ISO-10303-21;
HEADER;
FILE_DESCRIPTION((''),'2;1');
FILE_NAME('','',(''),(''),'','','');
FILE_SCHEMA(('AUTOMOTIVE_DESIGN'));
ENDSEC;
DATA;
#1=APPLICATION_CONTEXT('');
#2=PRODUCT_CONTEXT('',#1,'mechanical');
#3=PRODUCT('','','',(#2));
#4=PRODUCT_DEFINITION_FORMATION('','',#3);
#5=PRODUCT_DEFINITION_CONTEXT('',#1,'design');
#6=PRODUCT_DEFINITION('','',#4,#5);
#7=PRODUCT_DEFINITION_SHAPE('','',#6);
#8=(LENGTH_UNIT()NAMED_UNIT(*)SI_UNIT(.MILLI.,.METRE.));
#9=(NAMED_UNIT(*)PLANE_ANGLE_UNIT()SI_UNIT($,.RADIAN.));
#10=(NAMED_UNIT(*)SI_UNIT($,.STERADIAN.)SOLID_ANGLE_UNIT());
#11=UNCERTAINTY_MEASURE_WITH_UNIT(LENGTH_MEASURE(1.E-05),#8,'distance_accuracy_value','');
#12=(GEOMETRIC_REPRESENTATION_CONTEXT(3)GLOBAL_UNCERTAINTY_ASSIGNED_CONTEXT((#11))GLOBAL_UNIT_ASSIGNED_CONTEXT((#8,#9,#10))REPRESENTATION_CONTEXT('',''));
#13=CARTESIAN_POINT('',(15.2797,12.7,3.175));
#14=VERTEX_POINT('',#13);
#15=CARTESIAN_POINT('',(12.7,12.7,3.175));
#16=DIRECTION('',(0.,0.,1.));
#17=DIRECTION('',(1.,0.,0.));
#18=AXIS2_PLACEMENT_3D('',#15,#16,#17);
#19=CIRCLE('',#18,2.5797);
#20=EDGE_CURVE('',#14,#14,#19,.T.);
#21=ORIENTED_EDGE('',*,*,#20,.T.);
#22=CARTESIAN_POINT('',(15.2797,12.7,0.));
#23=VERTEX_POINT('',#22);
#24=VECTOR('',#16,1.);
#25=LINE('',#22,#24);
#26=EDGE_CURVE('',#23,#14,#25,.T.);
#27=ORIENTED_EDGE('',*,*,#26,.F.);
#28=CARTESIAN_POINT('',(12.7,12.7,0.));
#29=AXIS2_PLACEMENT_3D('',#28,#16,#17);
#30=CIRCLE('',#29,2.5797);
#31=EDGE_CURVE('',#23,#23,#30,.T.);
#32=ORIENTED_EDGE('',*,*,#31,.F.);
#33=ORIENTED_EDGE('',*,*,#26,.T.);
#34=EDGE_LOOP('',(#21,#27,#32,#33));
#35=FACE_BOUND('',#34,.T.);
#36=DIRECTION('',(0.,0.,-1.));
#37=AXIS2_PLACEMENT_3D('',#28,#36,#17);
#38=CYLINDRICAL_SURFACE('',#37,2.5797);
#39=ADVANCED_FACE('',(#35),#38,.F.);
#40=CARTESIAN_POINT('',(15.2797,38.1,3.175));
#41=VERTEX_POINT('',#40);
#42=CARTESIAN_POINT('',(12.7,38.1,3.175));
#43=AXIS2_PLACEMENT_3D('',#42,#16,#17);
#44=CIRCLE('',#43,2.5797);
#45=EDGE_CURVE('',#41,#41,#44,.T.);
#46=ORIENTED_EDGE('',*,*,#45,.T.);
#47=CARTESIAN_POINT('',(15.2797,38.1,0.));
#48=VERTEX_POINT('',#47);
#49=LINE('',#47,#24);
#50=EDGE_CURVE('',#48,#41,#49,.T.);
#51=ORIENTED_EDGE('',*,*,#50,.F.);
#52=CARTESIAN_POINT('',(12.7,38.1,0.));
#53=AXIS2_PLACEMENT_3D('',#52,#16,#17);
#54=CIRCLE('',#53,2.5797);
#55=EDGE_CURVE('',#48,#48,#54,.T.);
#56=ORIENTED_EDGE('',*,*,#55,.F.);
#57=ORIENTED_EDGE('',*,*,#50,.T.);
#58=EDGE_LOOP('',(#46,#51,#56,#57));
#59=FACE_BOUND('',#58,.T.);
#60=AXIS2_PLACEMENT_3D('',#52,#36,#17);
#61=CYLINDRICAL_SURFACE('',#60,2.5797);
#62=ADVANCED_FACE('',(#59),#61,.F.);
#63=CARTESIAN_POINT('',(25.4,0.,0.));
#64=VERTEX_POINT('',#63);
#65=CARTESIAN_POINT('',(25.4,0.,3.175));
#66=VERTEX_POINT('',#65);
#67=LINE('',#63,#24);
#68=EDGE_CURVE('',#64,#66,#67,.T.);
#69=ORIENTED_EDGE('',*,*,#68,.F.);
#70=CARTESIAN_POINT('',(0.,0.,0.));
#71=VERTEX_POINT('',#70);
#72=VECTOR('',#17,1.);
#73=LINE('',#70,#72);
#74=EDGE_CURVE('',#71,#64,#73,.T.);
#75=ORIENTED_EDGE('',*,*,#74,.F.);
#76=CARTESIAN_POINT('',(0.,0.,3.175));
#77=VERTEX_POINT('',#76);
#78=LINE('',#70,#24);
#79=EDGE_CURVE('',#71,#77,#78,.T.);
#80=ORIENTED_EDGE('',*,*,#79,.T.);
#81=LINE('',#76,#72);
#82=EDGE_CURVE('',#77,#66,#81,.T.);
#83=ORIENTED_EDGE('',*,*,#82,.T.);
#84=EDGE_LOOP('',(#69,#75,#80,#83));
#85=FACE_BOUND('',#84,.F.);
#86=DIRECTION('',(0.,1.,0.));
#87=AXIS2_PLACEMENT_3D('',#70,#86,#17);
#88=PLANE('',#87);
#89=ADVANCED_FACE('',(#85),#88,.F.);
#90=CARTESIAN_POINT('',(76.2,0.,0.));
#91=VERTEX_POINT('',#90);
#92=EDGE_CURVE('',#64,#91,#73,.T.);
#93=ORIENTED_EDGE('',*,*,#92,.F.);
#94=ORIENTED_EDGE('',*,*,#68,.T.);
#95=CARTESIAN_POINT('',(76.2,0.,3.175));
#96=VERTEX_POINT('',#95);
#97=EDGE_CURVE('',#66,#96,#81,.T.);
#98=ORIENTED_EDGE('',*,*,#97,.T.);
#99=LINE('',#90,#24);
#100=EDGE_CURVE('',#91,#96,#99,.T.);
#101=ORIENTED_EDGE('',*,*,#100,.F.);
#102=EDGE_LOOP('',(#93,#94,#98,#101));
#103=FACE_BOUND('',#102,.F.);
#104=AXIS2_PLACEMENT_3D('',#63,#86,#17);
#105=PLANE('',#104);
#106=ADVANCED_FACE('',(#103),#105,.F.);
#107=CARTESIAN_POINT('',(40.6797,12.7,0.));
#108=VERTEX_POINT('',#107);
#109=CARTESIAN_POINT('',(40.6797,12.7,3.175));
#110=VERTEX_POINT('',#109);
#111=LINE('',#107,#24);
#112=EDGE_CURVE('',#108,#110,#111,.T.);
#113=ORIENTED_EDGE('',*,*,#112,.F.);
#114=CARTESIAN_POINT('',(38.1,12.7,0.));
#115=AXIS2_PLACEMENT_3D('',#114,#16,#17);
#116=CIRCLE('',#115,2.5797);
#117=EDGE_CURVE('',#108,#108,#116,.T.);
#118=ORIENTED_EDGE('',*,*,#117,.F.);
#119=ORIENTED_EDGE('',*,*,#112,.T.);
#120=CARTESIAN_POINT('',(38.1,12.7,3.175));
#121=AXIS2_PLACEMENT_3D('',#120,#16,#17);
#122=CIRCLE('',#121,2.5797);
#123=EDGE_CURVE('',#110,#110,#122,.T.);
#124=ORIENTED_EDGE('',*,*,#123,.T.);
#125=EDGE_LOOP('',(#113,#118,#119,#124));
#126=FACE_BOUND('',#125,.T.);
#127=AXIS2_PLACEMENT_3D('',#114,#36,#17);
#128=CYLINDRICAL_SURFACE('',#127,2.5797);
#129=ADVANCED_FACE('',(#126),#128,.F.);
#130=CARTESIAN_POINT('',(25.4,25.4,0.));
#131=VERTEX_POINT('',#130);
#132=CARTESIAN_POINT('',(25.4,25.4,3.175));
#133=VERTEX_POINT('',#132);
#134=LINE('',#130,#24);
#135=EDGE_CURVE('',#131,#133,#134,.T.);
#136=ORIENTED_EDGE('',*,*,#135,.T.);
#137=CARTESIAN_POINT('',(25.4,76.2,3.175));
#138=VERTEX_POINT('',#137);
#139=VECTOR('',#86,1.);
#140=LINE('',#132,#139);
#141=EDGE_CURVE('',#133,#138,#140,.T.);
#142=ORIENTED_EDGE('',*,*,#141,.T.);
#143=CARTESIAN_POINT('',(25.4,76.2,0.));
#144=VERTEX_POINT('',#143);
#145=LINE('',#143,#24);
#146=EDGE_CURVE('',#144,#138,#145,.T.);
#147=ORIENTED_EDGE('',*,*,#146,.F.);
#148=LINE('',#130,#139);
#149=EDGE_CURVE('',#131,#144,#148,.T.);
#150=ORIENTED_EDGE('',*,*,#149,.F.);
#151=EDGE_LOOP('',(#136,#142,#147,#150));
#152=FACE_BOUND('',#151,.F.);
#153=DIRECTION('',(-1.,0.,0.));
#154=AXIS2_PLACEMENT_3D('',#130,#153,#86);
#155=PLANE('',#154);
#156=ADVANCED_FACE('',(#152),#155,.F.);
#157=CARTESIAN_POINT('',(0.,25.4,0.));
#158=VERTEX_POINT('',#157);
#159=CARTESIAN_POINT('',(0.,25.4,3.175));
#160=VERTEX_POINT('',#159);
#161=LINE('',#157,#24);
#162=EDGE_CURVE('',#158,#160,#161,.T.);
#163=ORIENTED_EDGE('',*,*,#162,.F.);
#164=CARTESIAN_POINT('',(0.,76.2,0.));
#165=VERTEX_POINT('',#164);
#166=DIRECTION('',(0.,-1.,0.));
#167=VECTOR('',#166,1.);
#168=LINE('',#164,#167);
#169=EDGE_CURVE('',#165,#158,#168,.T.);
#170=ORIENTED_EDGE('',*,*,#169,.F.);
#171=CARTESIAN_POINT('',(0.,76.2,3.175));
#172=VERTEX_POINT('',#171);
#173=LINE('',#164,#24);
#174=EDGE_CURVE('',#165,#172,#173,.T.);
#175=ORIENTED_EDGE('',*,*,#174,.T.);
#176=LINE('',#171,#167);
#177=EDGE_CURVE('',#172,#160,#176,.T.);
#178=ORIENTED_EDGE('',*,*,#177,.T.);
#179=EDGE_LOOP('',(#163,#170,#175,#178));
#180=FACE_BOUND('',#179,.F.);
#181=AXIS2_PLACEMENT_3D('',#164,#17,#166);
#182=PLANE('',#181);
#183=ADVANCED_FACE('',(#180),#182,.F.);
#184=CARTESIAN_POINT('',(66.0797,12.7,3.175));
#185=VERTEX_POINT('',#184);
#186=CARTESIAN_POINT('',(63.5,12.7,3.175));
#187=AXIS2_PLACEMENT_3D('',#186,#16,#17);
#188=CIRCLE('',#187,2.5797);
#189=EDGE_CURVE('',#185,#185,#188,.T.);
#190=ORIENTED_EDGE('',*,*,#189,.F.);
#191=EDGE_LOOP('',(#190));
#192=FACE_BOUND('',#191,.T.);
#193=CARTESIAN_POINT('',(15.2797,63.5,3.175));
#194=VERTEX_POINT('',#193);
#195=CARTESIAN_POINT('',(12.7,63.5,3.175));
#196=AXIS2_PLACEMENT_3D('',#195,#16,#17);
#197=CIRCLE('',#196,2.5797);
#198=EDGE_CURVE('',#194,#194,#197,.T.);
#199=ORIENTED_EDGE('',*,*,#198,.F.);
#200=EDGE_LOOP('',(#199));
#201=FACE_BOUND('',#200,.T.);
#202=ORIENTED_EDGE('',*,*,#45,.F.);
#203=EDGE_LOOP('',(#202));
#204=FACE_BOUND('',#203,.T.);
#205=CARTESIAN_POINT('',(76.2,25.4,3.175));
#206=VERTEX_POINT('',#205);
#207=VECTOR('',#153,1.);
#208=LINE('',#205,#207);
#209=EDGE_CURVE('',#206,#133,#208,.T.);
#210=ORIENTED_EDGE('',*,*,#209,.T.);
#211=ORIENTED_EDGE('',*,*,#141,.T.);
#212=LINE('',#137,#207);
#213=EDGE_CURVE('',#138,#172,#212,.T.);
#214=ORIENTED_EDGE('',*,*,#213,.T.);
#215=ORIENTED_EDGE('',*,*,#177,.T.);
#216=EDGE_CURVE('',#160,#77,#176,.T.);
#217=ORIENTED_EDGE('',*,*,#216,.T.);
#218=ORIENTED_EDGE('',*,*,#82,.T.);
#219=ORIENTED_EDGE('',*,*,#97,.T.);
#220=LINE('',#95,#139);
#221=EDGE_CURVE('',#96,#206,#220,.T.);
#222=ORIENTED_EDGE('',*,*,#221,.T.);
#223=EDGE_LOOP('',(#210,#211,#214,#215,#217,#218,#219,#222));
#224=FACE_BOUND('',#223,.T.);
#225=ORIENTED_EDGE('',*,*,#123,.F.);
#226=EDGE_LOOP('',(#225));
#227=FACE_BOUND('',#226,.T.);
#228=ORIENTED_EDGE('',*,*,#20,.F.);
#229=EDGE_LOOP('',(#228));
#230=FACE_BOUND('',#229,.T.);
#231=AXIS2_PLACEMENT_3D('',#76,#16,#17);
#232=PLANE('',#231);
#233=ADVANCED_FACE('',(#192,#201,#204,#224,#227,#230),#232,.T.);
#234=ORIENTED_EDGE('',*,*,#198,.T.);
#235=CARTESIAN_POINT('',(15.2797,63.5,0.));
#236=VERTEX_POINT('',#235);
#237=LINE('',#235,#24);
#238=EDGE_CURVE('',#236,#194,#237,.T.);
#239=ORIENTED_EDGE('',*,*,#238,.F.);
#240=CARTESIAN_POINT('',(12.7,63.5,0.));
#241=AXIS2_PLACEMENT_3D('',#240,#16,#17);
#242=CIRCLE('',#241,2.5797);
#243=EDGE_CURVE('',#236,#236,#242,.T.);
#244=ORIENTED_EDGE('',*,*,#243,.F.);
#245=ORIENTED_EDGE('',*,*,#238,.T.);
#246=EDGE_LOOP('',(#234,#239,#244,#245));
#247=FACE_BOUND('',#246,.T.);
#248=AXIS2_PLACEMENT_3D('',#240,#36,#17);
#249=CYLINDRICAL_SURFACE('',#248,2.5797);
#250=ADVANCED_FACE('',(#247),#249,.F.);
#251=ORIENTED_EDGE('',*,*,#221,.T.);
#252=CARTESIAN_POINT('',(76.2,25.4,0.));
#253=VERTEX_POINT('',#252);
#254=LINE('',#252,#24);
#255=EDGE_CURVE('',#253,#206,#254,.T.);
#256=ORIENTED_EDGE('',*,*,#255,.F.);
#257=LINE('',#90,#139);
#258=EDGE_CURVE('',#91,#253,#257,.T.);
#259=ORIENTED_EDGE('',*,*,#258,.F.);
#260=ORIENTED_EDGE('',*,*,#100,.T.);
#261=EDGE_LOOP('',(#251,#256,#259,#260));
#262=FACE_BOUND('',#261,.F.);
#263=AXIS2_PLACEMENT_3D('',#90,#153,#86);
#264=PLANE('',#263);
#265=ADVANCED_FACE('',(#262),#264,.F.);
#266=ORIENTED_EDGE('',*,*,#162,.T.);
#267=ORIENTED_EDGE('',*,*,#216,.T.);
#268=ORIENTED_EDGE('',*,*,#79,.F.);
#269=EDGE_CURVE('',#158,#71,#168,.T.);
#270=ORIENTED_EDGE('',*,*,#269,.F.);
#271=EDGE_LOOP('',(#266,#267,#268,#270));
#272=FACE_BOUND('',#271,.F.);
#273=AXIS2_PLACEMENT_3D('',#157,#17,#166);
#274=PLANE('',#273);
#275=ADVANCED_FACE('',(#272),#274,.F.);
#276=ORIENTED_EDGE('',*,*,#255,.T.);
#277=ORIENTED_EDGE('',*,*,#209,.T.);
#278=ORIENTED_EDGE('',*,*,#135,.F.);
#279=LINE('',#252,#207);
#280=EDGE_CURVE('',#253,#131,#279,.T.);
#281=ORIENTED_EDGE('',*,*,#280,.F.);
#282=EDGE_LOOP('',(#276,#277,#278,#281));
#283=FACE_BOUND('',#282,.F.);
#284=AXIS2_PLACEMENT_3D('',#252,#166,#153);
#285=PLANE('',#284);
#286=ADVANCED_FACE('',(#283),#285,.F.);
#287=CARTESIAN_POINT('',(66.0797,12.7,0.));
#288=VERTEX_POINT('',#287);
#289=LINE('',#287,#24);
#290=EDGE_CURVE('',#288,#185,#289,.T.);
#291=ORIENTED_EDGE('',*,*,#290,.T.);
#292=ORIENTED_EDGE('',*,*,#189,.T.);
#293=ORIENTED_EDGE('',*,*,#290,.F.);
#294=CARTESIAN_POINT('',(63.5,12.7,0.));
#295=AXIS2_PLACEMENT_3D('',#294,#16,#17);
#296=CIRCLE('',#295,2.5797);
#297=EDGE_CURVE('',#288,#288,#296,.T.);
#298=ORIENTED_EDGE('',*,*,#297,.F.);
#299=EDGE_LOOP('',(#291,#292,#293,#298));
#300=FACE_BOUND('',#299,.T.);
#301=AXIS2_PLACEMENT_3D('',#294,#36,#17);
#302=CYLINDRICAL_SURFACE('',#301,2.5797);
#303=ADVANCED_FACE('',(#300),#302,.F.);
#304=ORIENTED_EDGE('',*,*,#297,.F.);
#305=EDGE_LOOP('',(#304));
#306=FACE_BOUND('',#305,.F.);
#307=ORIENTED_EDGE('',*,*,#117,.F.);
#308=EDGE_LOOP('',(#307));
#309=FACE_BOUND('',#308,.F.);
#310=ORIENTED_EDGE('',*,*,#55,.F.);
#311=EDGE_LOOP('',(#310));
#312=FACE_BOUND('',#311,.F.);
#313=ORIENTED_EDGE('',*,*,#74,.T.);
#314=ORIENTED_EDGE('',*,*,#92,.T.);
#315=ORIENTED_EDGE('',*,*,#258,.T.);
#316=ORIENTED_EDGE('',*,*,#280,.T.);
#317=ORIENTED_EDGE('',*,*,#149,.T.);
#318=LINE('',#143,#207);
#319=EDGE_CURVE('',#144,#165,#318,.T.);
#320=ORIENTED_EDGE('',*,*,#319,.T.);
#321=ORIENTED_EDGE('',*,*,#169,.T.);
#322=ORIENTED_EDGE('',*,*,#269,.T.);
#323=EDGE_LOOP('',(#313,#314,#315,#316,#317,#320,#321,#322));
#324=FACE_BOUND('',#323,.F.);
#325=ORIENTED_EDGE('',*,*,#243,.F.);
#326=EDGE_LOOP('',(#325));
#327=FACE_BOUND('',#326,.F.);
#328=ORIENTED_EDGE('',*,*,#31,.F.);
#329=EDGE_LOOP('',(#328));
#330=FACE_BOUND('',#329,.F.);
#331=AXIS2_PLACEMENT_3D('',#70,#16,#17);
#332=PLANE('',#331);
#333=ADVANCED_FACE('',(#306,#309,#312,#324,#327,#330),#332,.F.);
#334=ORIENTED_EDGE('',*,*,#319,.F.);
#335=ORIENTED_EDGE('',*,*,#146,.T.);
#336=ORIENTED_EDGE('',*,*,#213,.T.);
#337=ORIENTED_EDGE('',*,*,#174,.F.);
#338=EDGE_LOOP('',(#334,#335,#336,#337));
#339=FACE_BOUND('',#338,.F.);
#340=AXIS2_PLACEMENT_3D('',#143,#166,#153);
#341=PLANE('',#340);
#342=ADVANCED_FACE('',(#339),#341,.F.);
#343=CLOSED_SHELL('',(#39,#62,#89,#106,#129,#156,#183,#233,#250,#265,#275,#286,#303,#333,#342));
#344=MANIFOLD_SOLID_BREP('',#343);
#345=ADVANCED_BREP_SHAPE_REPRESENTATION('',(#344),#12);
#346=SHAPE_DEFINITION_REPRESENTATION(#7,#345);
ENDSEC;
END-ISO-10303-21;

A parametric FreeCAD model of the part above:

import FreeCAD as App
import Part
import Sketcher

V = App.Vector
Q = App.Units.Quantity


def add_polygon(sketch, points):
    """Adds a closed chain of lines whose ends are joined by coincident constraints."""
    first, n = sketch.GeometryCount, len(points)
    for a, b in zip(points, points[1:] + points[:1]):
        sketch.addGeometry(Part.LineSegment(App.Vector(*a, 0), App.Vector(*b, 0)), False)
    for i in range(n):
        sketch.addConstraint(Sketcher.Constraint("Coincident", first + i, 2, first + (i + 1) % n, 1))

doc = App.newDocument("Part")
body = doc.addObject("PartDesign::Body", "Body")

# Sketch on XY plane
sketch1 = body.newObject("Sketcher::SketchObject", "Sketch")
sketch1.AttachmentSupport = (doc.getObject("XY_Plane"), [""])
sketch1.MapMode = "FlatFace"
add_polygon(sketch1, [(0, 76.2), (0, 0), (76.2, 0), (76.2, 25.4), (25.4, 25.4), (25.4, 76.2)])  # lines 0-5
sketch1.addGeometry(Part.Circle(V(12.7, 12.7, 0), V(0, 0, 1), 2.6), False)  # 6
sketch1.addGeometry(Part.Circle(V(38.1, 12.7, 0), V(0, 0, 1), 2.6), False)  # 7
sketch1.addGeometry(Part.Circle(V(63.5, 12.7, 0), V(0, 0, 1), 2.6), False)  # 8
sketch1.addGeometry(Part.Circle(V(12.7, 38.1, 0), V(0, 0, 1), 2.6), False)  # 9
sketch1.addGeometry(Part.Circle(V(12.7, 63.5, 0), V(0, 0, 1), 2.6), False)  # 10
sketch1.addConstraint(Sketcher.Constraint("Vertical", 0))
sketch1.addConstraint(Sketcher.Constraint("Horizontal", 1))
sketch1.addConstraint(Sketcher.Constraint("Vertical", 2))
sketch1.addConstraint(Sketcher.Constraint("Horizontal", 3))
sketch1.addConstraint(Sketcher.Constraint("Vertical", 4))
sketch1.addConstraint(Sketcher.Constraint("Horizontal", 5))
sketch1.addConstraint(Sketcher.Constraint("Coincident", 0, 2, -1, 1))
sketch1.addConstraint(Sketcher.Constraint("Equal", 6, 7))
sketch1.addConstraint(Sketcher.Constraint("Equal", 7, 8))
sketch1.addConstraint(Sketcher.Constraint("Equal", 8, 9))
sketch1.addConstraint(Sketcher.Constraint("Equal", 9, 10))
sketch1.addConstraint(Sketcher.Constraint("Horizontal", 6, 3, 7, 3))
sketch1.addConstraint(Sketcher.Constraint("Horizontal", 7, 3, 8, 3))
sketch1.addConstraint(Sketcher.Constraint("Vertical", 6, 3, 9, 3))
sketch1.addConstraint(Sketcher.Constraint("Vertical", 9, 3, 10, 3))
sketch1.addConstraint(Sketcher.Constraint("Equal", 1, 0))
sketch1.addConstraint(Sketcher.Constraint("Equal", 5, 2))
sketch1.addConstraint(Sketcher.Constraint("DistanceX", 1, 1, 1, 2, Q("3 in")))
sketch1.addConstraint(Sketcher.Constraint("DistanceX", 5, 2, 5, 1, Q("1 in")))
sketch1.addConstraint(Sketcher.Constraint("Diameter", 6, Q("0.203126 in")))
sketch1.addConstraint(Sketcher.Constraint("DistanceX", 6, 3, 7, 3, Q("1 in")))
sketch1.addConstraint(Sketcher.Constraint("DistanceX", 7, 3, 8, 3, Q("1 in")))
sketch1.addConstraint(Sketcher.Constraint("DistanceY", 6, 3, 9, 3, Q("1 in")))
sketch1.addConstraint(Sketcher.Constraint("DistanceY", 9, 3, 10, 3, Q("1 in")))
sketch1.addConstraint(Sketcher.Constraint("DistanceX", -1, 1, 6, 3, Q("0.5 in")))
sketch1.addConstraint(Sketcher.Constraint("DistanceY", -1, 1, 6, 3, Q("0.5 in")))
pad1 = body.newObject("PartDesign::Pad", "Pad")
pad1.Profile = sketch1
pad1.Length = Q("0.125 in")

doc.recompute()
